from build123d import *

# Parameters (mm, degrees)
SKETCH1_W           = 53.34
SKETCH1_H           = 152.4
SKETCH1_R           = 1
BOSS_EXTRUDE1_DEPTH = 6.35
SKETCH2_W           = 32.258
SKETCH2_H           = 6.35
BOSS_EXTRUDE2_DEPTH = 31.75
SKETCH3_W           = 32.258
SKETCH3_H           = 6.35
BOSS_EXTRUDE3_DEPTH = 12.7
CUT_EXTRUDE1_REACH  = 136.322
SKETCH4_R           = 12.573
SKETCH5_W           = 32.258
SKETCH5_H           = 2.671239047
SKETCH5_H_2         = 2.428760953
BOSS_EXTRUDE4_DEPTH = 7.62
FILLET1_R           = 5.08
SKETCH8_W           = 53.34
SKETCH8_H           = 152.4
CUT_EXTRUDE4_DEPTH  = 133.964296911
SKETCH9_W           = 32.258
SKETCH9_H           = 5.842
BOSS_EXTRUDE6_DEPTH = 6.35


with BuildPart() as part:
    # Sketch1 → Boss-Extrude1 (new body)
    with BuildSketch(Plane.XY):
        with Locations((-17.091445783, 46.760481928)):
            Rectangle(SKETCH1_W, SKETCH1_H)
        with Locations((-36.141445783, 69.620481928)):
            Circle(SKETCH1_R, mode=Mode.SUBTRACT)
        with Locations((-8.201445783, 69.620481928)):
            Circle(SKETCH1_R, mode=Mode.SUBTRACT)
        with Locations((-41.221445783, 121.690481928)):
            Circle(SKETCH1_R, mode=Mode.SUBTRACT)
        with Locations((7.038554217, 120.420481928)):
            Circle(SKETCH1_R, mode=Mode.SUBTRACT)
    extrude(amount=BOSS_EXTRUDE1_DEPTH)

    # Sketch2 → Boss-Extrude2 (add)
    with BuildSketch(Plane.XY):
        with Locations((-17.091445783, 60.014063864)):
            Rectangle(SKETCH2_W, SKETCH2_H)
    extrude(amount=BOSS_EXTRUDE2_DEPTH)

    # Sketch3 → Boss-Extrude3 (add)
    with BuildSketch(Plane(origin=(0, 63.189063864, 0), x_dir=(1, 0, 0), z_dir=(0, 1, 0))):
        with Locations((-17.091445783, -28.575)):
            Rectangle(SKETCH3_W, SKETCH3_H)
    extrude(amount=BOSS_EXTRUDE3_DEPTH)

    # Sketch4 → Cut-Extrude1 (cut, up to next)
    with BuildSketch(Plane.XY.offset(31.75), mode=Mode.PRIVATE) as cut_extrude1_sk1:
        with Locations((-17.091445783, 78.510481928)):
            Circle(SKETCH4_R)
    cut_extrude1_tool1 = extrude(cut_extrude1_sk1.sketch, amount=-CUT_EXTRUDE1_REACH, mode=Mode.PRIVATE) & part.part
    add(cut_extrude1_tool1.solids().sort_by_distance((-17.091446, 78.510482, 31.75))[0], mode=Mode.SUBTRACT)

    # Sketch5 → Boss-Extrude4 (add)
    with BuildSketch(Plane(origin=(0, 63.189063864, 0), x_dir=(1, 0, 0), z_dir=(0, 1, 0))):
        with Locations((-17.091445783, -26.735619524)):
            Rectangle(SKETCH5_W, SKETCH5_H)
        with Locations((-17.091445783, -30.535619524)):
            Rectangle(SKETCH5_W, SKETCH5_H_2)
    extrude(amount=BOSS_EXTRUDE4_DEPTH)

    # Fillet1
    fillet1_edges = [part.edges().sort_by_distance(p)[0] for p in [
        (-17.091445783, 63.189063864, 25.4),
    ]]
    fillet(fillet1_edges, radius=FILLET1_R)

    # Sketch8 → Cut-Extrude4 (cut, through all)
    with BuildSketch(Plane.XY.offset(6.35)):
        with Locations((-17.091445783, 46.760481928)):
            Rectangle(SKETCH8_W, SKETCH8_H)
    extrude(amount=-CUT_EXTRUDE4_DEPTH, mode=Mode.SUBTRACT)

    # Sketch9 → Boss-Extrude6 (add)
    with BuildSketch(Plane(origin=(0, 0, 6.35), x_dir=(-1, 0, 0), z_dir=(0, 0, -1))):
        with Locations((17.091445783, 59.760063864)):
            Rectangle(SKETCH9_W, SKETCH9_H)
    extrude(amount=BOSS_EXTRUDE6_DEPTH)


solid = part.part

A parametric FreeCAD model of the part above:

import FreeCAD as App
import Part
import Sketcher

V = App.Vector
Q = App.Units.Quantity


def edges_at(feature, points):
    """Names of the edges that pass closest to the given points."""
    edges = feature.Shape.Edges
    near = lambda p: min(range(len(edges)), key=lambda i: edges[i].distToShape(Part.Vertex(*p))[0])
    return sorted({f"Edge{near(p) + 1}" for p in points})


def add_polygon(sketch, points):
    """Adds a closed chain of lines whose ends are joined by coincident constraints."""
    first, n = sketch.GeometryCount, len(points)
    for a, b in zip(points, points[1:] + points[:1]):
        sketch.addGeometry(Part.LineSegment(App.Vector(*a, 0), App.Vector(*b, 0)), False)
    for i in range(n):
        sketch.addConstraint(Sketcher.Constraint("Coincident", first + i, 2, first + (i + 1) % n, 1))

doc = App.newDocument("Part")
body = doc.addObject("PartDesign::Body", "Body")

# Sketch on XY plane
sketch1 = doc.addObject("Sketcher::SketchObject", "Sketch")
body.addObject(sketch1)
sketch1.AttachmentSupport = (doc.XY_Plane, [""])
sketch1.MapMode = "FlatFace"
add_polygon(sketch1, [(-43.8, 123), (-43.8, -29.4), (9.6, -29.4), (9.6, 123)])  # lines 0-3
sketch1.addGeometry(Part.Circle(V(-36.1, 69.6, 0), V(0, 0, 1), 1), False)  # 4
sketch1.addGeometry(Part.Circle(V(-8.2, 69.6, 0), V(0, 0, 1), 1), False)  # 5
sketch1.addGeometry(Part.Circle(V(-41.2, 121.7, 0), V(0, 0, 1), 1), False)  # 6
sketch1.addGeometry(Part.Circle(V(7, 120.4, 0), V(0, 0, 1), 1), False)  # 7
sketch1.addConstraint([
    Sketcher.Constraint("Vertical", 0),
    Sketcher.Constraint("Horizontal", 1),
    Sketcher.Constraint("Vertical", 2),
    Sketcher.Constraint("Horizontal", 3),
    Sketcher.Constraint("Equal", 4, 5),
    Sketcher.Constraint("Equal", 5, 6),
    Sketcher.Constraint("Equal", 6, 7),
    Sketcher.Constraint("Horizontal", 4, 3, 5, 3),
    Sketcher.Constraint("DistanceY", 0, 2, 0, 1, Q("6 in")),
    Sketcher.Constraint("DistanceX", 1, 1, 1, 2, Q("2.1 in")),
    Sketcher.Constraint("DistanceY", 5, 3, 7, 3, Q("2 in")),
    Sketcher.Constraint("DistanceX", 0, 2, 7, 3, Q("2 in")),
    Sketcher.Constraint("DistanceX", 6, 3, 1, 2, Q("2 in")),
    Sketcher.Constraint("DistanceX", 4, 3, 5, 3, Q("1.1 in")),
    Sketcher.Constraint("DistanceX", 6, 3, 4, 3, Q("0.2 in")),
    Sketcher.Constraint("DistanceY", 0, 2, 4, 3, Q("3.9 in")),
    Sketcher.Constraint("Diameter", 4, Q("2 mm")),
    Sketcher.Constraint("DistanceY", 4, 3, 6, 3, Q("2.05 in")),
    Sketcher.Constraint("DistanceY", -1, 1, 4, 3, Q("69.620482 mm")),
    Sketcher.Constraint("DistanceX", 4, 3, -1, 1, Q("36.141446 mm")),
])
pad1 = doc.addObject("PartDesign::Pad", "Pad")
body.addObject(pad1)
pad1.Profile = sketch1
pad1.Length = Q("0.25 in")

# Sketch on XY plane
sketch2 = doc.addObject("Sketcher::SketchObject", "Sketch001")
body.addObject(sketch2)
sketch2.AttachmentSupport = (doc.XY_Plane, [""])
sketch2.MapMode = "FlatFace"
add_polygon(sketch2, [(-33, 63), (-33, 57), (-1, 57), (-1, 63)])  # lines 0-3
sketch2.addConstraint([
    Sketcher.Constraint("Vertical", 0),
    Sketcher.Constraint("Horizontal", 1),
    Sketcher.Constraint("Vertical", 2),
    Sketcher.Constraint("Horizontal", 3),
    Sketcher.Constraint("DistanceX", 1, 1, 1, 2, Q("1.27 in")),
    Sketcher.Constraint("DistanceY", 0, 2, 0, 1, Q("0.25 in")),
    Sketcher.Constraint("DistanceX", 0, 2, -1, 1, Q("33.220446 mm")),
    Sketcher.Constraint("DistanceY", -1, 1, 0, 2, Q("56.839064 mm")),
])
pad2 = doc.addObject("PartDesign::Pad", "Pad001")
body.addObject(pad2)
pad2.Profile = sketch2
pad2.Length = Q("1.25 in")

# Sketch on XZ plane
sketch3 = doc.addObject("Sketcher::SketchObject", "Sketch002")
body.addObject(sketch3)
sketch3.AttachmentSupport = (doc.XZ_Plane, [""])
sketch3.MapMode = "FlatFace"
sketch3.AttachmentOffset = App.Placement(V(0, 0, -63.189064), App.Rotation())
add_polygon(sketch3, [(-33, 25), (-33, 32), (-1, 32), (-1, 25)])  # lines 0-3
sketch3.addConstraint([
    Sketcher.Constraint("Vertical", 0),
    Sketcher.Constraint("Horizontal", 1),
    Sketcher.Constraint("Vertical", 2),
    Sketcher.Constraint("Horizontal", 3),
    Sketcher.Constraint("DistanceY", -1, 1, 2, 2, Q("1 in")),
    Sketcher.Constraint("DistanceX", 1, 1, 1, 2, Q("1.27 in")),
    Sketcher.Constraint("DistanceY", 0, 1, 0, 2, Q("0.25 in")),
    Sketcher.Constraint("DistanceX", 0, 2, -1, 1, Q("33.220446 mm")),
])
pad3 = doc.addObject("PartDesign::Pad", "Pad002")
body.addObject(pad3)
pad3.Profile = sketch3
pad3.Length = Q("0.5 in")
pad3.Reversed = True

# Sketch on XY plane
sketch4 = doc.addObject("Sketcher::SketchObject", "Sketch003")
body.addObject(sketch4)
sketch4.AttachmentSupport = (doc.XY_Plane, [""])
sketch4.MapMode = "FlatFace"
sketch4.AttachmentOffset = App.Placement(V(0, 0, 1.25 * 25.4), App.Rotation())
sketch4.addGeometry(Part.Circle(V(-17, 79, 0), V(0, 0, 1), 13), False)
sketch4.addConstraint([
    Sketcher.Constraint("Diameter", 0, Q("0.99 in")),
    Sketcher.Constraint("DistanceY", -1, 1, 0, 3, Q("78.510482 mm")),
    Sketcher.Constraint("DistanceX", 0, 3, -1, 1, Q("17.091446 mm")),
])
pocket1 = doc.addObject("PartDesign::Pocket", "Pocket")
body.addObject(pocket1)
pocket1.Profile = sketch4
pocket1.Type = "UpToFirst"

# Sketch on XZ plane
sketch5 = doc.addObject("Sketcher::SketchObject", "Sketch004")
body.addObject(sketch5)
sketch5.AttachmentSupport = (doc.XZ_Plane, [""])
sketch5.MapMode = "FlatFace"
sketch5.AttachmentOffset = App.Placement(V(0, 0, -63.189064), App.Rotation())
add_polygon(sketch5, [(-33.2, 25.4), (-33.2, 28.1), (-1, 28.1), (-1, 25.4)])  # lines 0-3
add_polygon(sketch5, [(-33.2, 29.3), (-33.2, 31.8), (-1, 31.8), (-1, 29.3)])  # lines 4-7
sketch5.addConstraint([
    Sketcher.Constraint("Vertical", 0),
    Sketcher.Constraint("Horizontal", 1),
    Sketcher.Constraint("Vertical", 2),
    Sketcher.Constraint("Horizontal", 3),
    Sketcher.Constraint("Vertical", 4),
    Sketcher.Constraint("Horizontal", 5),
    Sketcher.Constraint("Vertical", 6),
    Sketcher.Constraint("Horizontal", 7),
    Sketcher.Constraint("Vertical", 3, 2, 4, 2),
    Sketcher.Constraint("Vertical", 2, 2, 5, 2),
    Sketcher.Constraint("DistanceY", -1, 1, 2, 2, Q("1 in")),
    Sketcher.Constraint("DistanceX", 1, 1, 1, 2, Q("1.27 in")),
    Sketcher.Constraint("DistanceY", -1, 1, 4, 2, Q("1.25 in")),
    Sketcher.Constraint("DistanceY", 0, 1, 0, 2, Q("2.671239 mm")),
    Sketcher.Constraint("DistanceY", 4, 1, 4, 2, Q("2.428761 mm")),
    Sketcher.Constraint("DistanceX", 0, 2, -1, 1, Q("33.220446 mm")),
])
pad4 = doc.addObject("PartDesign::Pad", "Pad003")
body.addObject(pad4)
pad4.Profile = sketch5
pad4.Length = Q("0.3 in")
pad4.Reversed = True
doc.recompute()

fillet = doc.addObject("PartDesign::Fillet", "Fillet")
body.addObject(fillet)
fillet.Base = (pad4, edges_at(pad4, [(-17.091, 63.189, 25.4)]))
fillet.Radius = Q("0.2 in")

# Sketch on XY plane
sketch6 = doc.addObject("Sketcher::SketchObject", "Sketch005")
body.addObject(sketch6)
sketch6.AttachmentSupport = (doc.XY_Plane, [""])
sketch6.MapMode = "FlatFace"
sketch6.AttachmentOffset = App.Placement(V(0, 0, 0.25 * 25.4), App.Rotation())
add_polygon(sketch6, [(-44, 123), (-44, -29), (10, -29), (10, 123)])  # lines 0-3
sketch6.addConstraint([
    Sketcher.Constraint("Vertical", 0),
    Sketcher.Constraint("Horizontal", 1),
    Sketcher.Constraint("Vertical", 2),
    Sketcher.Constraint("Horizontal", 3),
    Sketcher.Constraint("DistanceY", 0, 2, 0, 1, Q("6 in")),
    Sketcher.Constraint("DistanceX", 1, 1, 1, 2, Q("2.1 in")),
    Sketcher.Constraint("DistanceY", 0, 2, -1, 1, Q("29.439518 mm")),
    Sketcher.Constraint("DistanceX", 0, 2, -1, 1, Q("43.761446 mm")),
])
pocket2 = doc.addObject("PartDesign::Pocket", "Pocket001")
body.addObject(pocket2)
pocket2.Profile = sketch6
pocket2.Type = "ThroughAll"

# Sketch on XY plane
sketch7 = doc.addObject("Sketcher::SketchObject", "Sketch006")
body.addObject(sketch7)
sketch7.AttachmentSupport = (doc.XY_Plane, [""])
sketch7.MapMode = "FlatFace"
sketch7.AttachmentOffset = App.Placement(V(0, 0, 0.25 * 25.4), App.Rotation())
add_polygon(sketch7, [(-1, 63), (-1, 57), (-33, 57), (-33, 63)])  # lines 0-3
sketch7.addConstraint([
    Sketcher.Constraint("Vertical", 0),
    Sketcher.Constraint("Horizontal", 1),
    Sketcher.Constraint("Vertical", 2),
    Sketcher.Constraint("Horizontal", 3),
    Sketcher.Constraint("DistanceX", 1, 2, 1, 1, Q("1.27 in")),
    Sketcher.Constraint("DistanceY", 0, 2, 0, 1, Q("0.23 in")),
    Sketcher.Constraint("DistanceX", 0, 2, -1, 1, Q("0.962446 mm")),
    Sketcher.Constraint("DistanceY", -1, 1, 0, 2, Q("56.839064 mm")),
])
pad5 = doc.addObject("PartDesign::Pad", "Pad004")
body.addObject(pad5)
pad5.Profile = sketch7
pad5.Length = Q("0.25 in")
pad5.Reversed = True

doc.recompute()
